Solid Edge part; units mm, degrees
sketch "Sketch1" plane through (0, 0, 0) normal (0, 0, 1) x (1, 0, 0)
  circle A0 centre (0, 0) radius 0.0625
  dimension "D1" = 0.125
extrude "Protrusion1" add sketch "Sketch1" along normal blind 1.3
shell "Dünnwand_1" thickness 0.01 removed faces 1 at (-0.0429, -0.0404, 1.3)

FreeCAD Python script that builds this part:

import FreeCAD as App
import Part
import Sketcher


def faces_at(feature, points):
    """Names of the faces that lie closest to the given points."""
    faces = feature.Shape.Faces
    near = lambda p: min(range(len(faces)), key=lambda i: faces[i].distToShape(Part.Vertex(*p))[0])
    return sorted({f"Face{near(p) + 1}" for p in points})

doc = App.newDocument("Part")
body = doc.addObject("PartDesign::Body", "Body")

# Sketch on XY plane
sketch1 = body.newObject("Sketcher::SketchObject", "Sketch")
sketch1.AttachmentSupport = (doc.getObject("XY_Plane"), [""])
sketch1.MapMode = "FlatFace"
sketch1.addGeometry(Part.Circle(App.Vector(0, 0, 0), App.Vector(0, 0, 1), 0.06), False)
sketch1.addConstraint([
    Sketcher.Constraint("Coincident", 0, 3, -1, 1),
    Sketcher.Constraint("Diameter", 0, 0.125),
])
pad1 = body.newObject("PartDesign::Pad", "Pad")
pad1.Profile = sketch1
pad1.Length = 1.3
doc.recompute()

thickness = body.newObject("PartDesign::Thickness", "Thickness")
thickness.Base = (pad1, faces_at(pad1, [(-0.043, -0.04, 1.3)]))
thickness.Value = 0.01
thickness.Reversed = True
thickness.Join = "Intersection"

doc.recompute()
